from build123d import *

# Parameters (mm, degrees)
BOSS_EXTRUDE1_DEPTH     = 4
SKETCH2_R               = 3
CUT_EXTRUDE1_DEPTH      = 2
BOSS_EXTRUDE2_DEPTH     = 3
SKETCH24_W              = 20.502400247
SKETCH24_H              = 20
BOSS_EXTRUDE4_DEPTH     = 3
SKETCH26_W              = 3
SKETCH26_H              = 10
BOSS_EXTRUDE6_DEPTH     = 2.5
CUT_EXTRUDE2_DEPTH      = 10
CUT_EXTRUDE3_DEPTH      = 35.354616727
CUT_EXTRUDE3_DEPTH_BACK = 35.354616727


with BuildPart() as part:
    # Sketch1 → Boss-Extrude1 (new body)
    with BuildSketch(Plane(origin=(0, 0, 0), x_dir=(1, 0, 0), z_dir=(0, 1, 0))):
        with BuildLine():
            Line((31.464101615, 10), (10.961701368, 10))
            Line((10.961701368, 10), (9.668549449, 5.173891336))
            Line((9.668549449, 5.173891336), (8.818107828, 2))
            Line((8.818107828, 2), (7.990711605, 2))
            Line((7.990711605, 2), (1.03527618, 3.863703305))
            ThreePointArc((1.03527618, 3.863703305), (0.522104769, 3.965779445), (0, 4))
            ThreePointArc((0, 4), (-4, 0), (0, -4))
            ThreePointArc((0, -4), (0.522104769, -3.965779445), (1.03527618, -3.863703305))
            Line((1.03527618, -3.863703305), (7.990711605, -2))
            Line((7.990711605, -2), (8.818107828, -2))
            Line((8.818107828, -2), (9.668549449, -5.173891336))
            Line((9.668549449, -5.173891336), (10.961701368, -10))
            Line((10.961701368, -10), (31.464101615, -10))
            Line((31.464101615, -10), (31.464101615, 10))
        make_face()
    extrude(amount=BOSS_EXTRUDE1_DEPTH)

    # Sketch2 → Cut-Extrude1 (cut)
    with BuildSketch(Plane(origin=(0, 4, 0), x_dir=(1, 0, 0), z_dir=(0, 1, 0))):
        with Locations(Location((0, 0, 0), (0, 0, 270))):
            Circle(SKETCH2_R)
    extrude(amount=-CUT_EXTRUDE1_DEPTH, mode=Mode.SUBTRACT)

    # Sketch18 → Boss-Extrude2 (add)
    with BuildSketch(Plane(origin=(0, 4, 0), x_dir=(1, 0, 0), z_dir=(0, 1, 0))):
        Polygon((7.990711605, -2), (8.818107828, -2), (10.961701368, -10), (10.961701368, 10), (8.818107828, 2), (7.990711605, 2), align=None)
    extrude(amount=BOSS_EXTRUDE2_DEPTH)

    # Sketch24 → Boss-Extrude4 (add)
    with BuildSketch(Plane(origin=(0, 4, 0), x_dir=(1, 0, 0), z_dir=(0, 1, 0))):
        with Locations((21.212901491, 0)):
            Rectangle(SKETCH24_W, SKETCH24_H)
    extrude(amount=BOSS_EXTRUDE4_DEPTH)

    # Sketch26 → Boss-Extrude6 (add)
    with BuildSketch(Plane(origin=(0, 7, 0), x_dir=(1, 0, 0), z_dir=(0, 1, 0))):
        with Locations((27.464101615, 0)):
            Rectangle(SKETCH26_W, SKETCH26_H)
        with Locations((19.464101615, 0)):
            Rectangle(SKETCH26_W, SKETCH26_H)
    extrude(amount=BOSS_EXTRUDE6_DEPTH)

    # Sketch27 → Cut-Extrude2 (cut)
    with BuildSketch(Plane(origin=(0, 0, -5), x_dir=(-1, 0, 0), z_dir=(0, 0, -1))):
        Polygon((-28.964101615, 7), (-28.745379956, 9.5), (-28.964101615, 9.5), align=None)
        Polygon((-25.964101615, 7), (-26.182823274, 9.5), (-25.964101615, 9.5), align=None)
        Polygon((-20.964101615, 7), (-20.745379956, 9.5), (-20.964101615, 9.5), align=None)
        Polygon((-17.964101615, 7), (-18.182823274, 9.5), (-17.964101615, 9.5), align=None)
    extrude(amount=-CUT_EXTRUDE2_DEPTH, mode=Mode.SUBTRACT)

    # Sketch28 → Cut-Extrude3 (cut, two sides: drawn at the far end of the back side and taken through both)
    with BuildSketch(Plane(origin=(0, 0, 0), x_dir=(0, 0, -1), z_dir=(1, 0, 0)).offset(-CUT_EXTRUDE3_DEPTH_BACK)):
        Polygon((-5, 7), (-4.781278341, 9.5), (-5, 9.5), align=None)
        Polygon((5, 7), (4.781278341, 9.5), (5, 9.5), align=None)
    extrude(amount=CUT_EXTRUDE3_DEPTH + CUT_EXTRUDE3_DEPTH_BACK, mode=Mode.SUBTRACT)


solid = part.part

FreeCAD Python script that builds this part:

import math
import FreeCAD as App
import Part
import Sketcher
Q = App.Units.Quantity

doc = App.newDocument("Part")
params = doc.addObject("Spreadsheet::Sheet", "Params")
for row, (alias, value) in enumerate([
    ("sketch1_radius", "4 mm"),
    ("sketch1_height", "20 mm"),
    ("pad1_length", "4 mm"),
    ("sketch2_diameter", "6 mm"),
    ("pocket1_length", "2 mm"),
    ("sketch3_height", "20 mm"),
    ("sketch3_height2", "4 mm"),
    ("pad2_length", "3 mm"),
    ("sketch4_height", "20 mm"),
    ("pad3_length", "3 mm"),
    ("sketch5_width", "3 mm"),
    ("sketch5_height", "10 mm"),
    ("pad4_length", "2.5 mm"),
    ("sketch6_height", "2.5 mm"),
    ("pocket2_length", "10 mm"),
    ("sketch7_width", "2.5 mm"),
], start=1):
    params.set(f"A{row}", alias)
    params.set(f"B{row}", "=" + value)
    params.setAlias(f"B{row}", alias)

body = doc.addObject("PartDesign::Body", "Body")

sketch1 = body.newObject("Sketcher::SketchObject", "Sketch")
sketch1.AttachmentSupport = (doc.getObject("XZ_Plane"), [""])
sketch1.MapMode = "FlatFace"
sketch1.addGeometry([
    Part.LineSegment(App.Vector(31.5, -10, 0), App.Vector(11, -10, 0)),
    Part.LineSegment(App.Vector(11, -10, 0), App.Vector(9.7, -5.2, 0)),
    Part.LineSegment(App.Vector(9.7, -5.2, 0), App.Vector(8.8, -2, 0)),
    Part.LineSegment(App.Vector(8.8, -2, 0), App.Vector(8, -2, 0)),
    Part.LineSegment(App.Vector(8, -2, 0), App.Vector(1, -3.9, 0)),
    Part.ArcOfCircle(Part.Circle(App.Vector(0, 0, 0), App.Vector(0, 0, 1), 4), math.radians(-90), math.radians(-75)),
    Part.ArcOfCircle(Part.Circle(App.Vector(0, 0, 0), App.Vector(0, 0, 1), 4), math.radians(90), math.radians(270)),
    Part.ArcOfCircle(Part.Circle(App.Vector(0, 0, 0), App.Vector(0, 0, 1), 4), math.radians(75), math.radians(90)),
    Part.LineSegment(App.Vector(1, 3.9, 0), App.Vector(8, 2, 0)),
    Part.LineSegment(App.Vector(8, 2, 0), App.Vector(8.8, 2, 0)),
    Part.LineSegment(App.Vector(8.8, 2, 0), App.Vector(9.7, 5.2, 0)),
    Part.LineSegment(App.Vector(9.7, 5.2, 0), App.Vector(11, 10, 0)),
    Part.LineSegment(App.Vector(11, 10, 0), App.Vector(31.5, 10, 0)),
    Part.LineSegment(App.Vector(31.5, 10, 0), App.Vector(31.5, -10, 0)),
], False)
sketch1.addConstraint([
    Sketcher.Constraint("Coincident", 0, 2, 1, 1),
    Sketcher.Constraint("Coincident", 1, 2, 2, 1),
    Sketcher.Constraint("Coincident", 2, 2, 3, 1),
    Sketcher.Constraint("Coincident", 3, 2, 4, 1),
    Sketcher.Constraint("Tangent", 4, 2, 5, 2),
    Sketcher.Constraint("Tangent", 5, 1, 6, 2),
    Sketcher.Constraint("Tangent", 6, 1, 7, 2),
    Sketcher.Constraint("Tangent", 7, 1, 8, 1),
    Sketcher.Constraint("Coincident", 8, 2, 9, 1),
    Sketcher.Constraint("Coincident", 9, 2, 10, 1),
    Sketcher.Constraint("Coincident", 10, 2, 11, 1),
    Sketcher.Constraint("Coincident", 11, 2, 12, 1),
    Sketcher.Constraint("Coincident", 12, 2, 13, 1),
    Sketcher.Constraint("Coincident", 13, 2, 0, 1),
    Sketcher.Constraint("Horizontal", 0),
    Sketcher.Constraint("Horizontal", 3),
    Sketcher.Constraint("Horizontal", 9),
    Sketcher.Constraint("Horizontal", 12),
    Sketcher.Constraint("Vertical", 13),
    Sketcher.Constraint("Coincident", 5, 3, -1, 1),
    Sketcher.Constraint("Equal", 5, 6),
    Sketcher.Constraint("Equal", 6, 7),
    Sketcher.Constraint("Symmetric", 3, 2, 8, 2, -1),
    Sketcher.Constraint("Symmetric", 1, 2, 10, 2, -1),
    Sketcher.Constraint("Symmetric", 0, 2, 11, 2, -1),
    Sketcher.Constraint("PointOnObject", 5, 1, -2),
    Sketcher.Constraint("PointOnObject", 6, 1, -2),
    Sketcher.Constraint("Parallel", 1, 2),
    Sketcher.Constraint("Perpendicular", 2, 4),
    Sketcher.Constraint("Perpendicular", 8, 10),
    Sketcher.Constraint("Radius", 5, 4.0),
    Sketcher.Constraint("DistanceY", 13, 2, 13, 1, 20.0),
    Sketcher.Constraint("Angle", 1, Q("105 deg")),
    Sketcher.Constraint("DistanceY", 2, 2, -1, 1, 2.0),
    Sketcher.Constraint("DistanceX", 0, 2, 0, 1, 20.5024),
    Sketcher.Constraint("DistanceX", -1, 1, 0, 2, 10.961701),
    Sketcher.Constraint("DistanceX", -1, 1, 1, 2, 9.668549),
])
sketch1.setExpression("Constraints[30]", "Params.sketch1_radius")
sketch1.setExpression("Constraints[31]", "Params.sketch1_height")
pad1 = body.newObject("PartDesign::Pad", "Pad")
pad1.Profile = sketch1
pad1.setExpression("Length", "Params.pad1_length")
pad1.Reversed = True

sketch2 = body.newObject("Sketcher::SketchObject", "Sketch001")
sketch2.AttachmentSupport = (doc.getObject("XZ_Plane"), [""])
sketch2.MapMode = "FlatFace"
sketch2.AttachmentOffset = App.Placement(App.Vector(0, 0, -4), App.Rotation())
sketch2.addGeometry(Part.Circle(App.Vector(0, 0, 0), App.Vector(0, 0, 1), 3), False)
sketch2.addConstraint([
    Sketcher.Constraint("Coincident", 0, 3, -1, 1),
    Sketcher.Constraint("Diameter", 0, 6.0),
])
sketch2.setExpression("Constraints[1]", "Params.sketch2_diameter")
pocket1 = body.newObject("PartDesign::Pocket", "Pocket")
pocket1.Profile = sketch2
pocket1.setExpression("Length", "Params.pocket1_length")
pocket1.Reversed = True

sketch3 = body.newObject("Sketcher::SketchObject", "Sketch002")
sketch3.AttachmentSupport = (doc.getObject("XZ_Plane"), [""])
sketch3.MapMode = "FlatFace"
sketch3.AttachmentOffset = App.Placement(App.Vector(0, 0, -4), App.Rotation())
sketch3.addGeometry([
    Part.LineSegment(App.Vector(8, 2, 0), App.Vector(8.8, 2, 0)),
    Part.LineSegment(App.Vector(8.8, 2, 0), App.Vector(11, 10, 0)),
    Part.LineSegment(App.Vector(11, 10, 0), App.Vector(11, -10, 0)),
    Part.LineSegment(App.Vector(11, -10, 0), App.Vector(8.8, -2, 0)),
    Part.LineSegment(App.Vector(8.8, -2, 0), App.Vector(8, -2, 0)),
    Part.LineSegment(App.Vector(8, -2, 0), App.Vector(8, 2, 0)),
], False)
sketch3.addConstraint([
    Sketcher.Constraint("Coincident", 0, 2, 1, 1),
    Sketcher.Constraint("Coincident", 1, 2, 2, 1),
    Sketcher.Constraint("Coincident", 2, 2, 3, 1),
    Sketcher.Constraint("Coincident", 3, 2, 4, 1),
    Sketcher.Constraint("Coincident", 4, 2, 5, 1),
    Sketcher.Constraint("Coincident", 5, 2, 0, 1),
    Sketcher.Constraint("Horizontal", 0),
    Sketcher.Constraint("Vertical", 2),
    Sketcher.Constraint("Horizontal", 4),
    Sketcher.Constraint("Vertical", 5),
    Sketcher.Constraint("Symmetric", 0, 2, 3, 2, -1),
    Sketcher.Constraint("Equal", 1, 3),
    Sketcher.Constraint("DistanceY", 2, 2, 2, 1, 20.0),
    Sketcher.Constraint("DistanceY", 5, 1, 5, 2, 4.0),
    Sketcher.Constraint("Angle", 1, Q("75 deg")),
    Sketcher.Constraint("DistanceX", -1, 1, 1, 2, 10.961701),
    Sketcher.Constraint("DistanceX", 0, 1, 0, 2, 0.827396),
])
sketch3.setExpression("Constraints[12]", "Params.sketch3_height")
sketch3.setExpression("Constraints[13]", "Params.sketch3_height2")
pad2 = body.newObject("PartDesign::Pad", "Pad001")
pad2.Profile = sketch3
pad2.setExpression("Length", "Params.pad2_length")
pad2.Reversed = True

sketch4 = body.newObject("Sketcher::SketchObject", "Sketch003")
sketch4.AttachmentSupport = (doc.getObject("XZ_Plane"), [""])
sketch4.MapMode = "FlatFace"
sketch4.AttachmentOffset = App.Placement(App.Vector(0, 0, -4), App.Rotation())
sketch4.addGeometry([
    Part.LineSegment(App.Vector(11, -10, 0), App.Vector(11, 10, 0)),
    Part.LineSegment(App.Vector(11, 10, 0), App.Vector(31, 10, 0)),
    Part.LineSegment(App.Vector(31, 10, 0), App.Vector(31, -10, 0)),
    Part.LineSegment(App.Vector(31, -10, 0), App.Vector(11, -10, 0)),
], False)
sketch4.addConstraint([
    Sketcher.Constraint("Coincident", 0, 2, 1, 1),
    Sketcher.Constraint("Coincident", 1, 2, 2, 1),
    Sketcher.Constraint("Coincident", 2, 2, 3, 1),
    Sketcher.Constraint("Coincident", 3, 2, 0, 1),
    Sketcher.Constraint("Vertical", 0),
    Sketcher.Constraint("Horizontal", 1),
    Sketcher.Constraint("Vertical", 2),
    Sketcher.Constraint("Horizontal", 3),
    Sketcher.Constraint("DistanceY", 0, 1, 0, 2, 20.0),
    Sketcher.Constraint("DistanceY", -1, 1, 0, 2, 10.0),
    Sketcher.Constraint("DistanceX", 1, 1, 1, 2, 20.5024),
    Sketcher.Constraint("DistanceX", -1, 1, 0, 2, 10.961701),
])
sketch4.setExpression("Constraints[8]", "Params.sketch4_height")
pad3 = body.newObject("PartDesign::Pad", "Pad002")
pad3.Profile = sketch4
pad3.setExpression("Length", "Params.pad3_length")
pad3.Reversed = True

sketch5 = body.newObject("Sketcher::SketchObject", "Sketch004")
sketch5.AttachmentSupport = (doc.getObject("XZ_Plane"), [""])
sketch5.MapMode = "FlatFace"
sketch5.AttachmentOffset = App.Placement(App.Vector(0, 0, -7), App.Rotation())
sketch5.addGeometry([
    Part.LineSegment(App.Vector(26, -5, 0), App.Vector(26, 5, 0)),
    Part.LineSegment(App.Vector(26, 5, 0), App.Vector(29, 5, 0)),
    Part.LineSegment(App.Vector(29, 5, 0), App.Vector(29, -5, 0)),
    Part.LineSegment(App.Vector(29, -5, 0), App.Vector(26, -5, 0)),
    Part.LineSegment(App.Vector(18, -5, 0), App.Vector(18, 5, 0)),
    Part.LineSegment(App.Vector(18, 5, 0), App.Vector(21, 5, 0)),
    Part.LineSegment(App.Vector(21, 5, 0), App.Vector(21, -5, 0)),
    Part.LineSegment(App.Vector(21, -5, 0), App.Vector(18, -5, 0)),
], False)
sketch5.addConstraint([
    Sketcher.Constraint("Coincident", 0, 2, 1, 1),
    Sketcher.Constraint("Coincident", 1, 2, 2, 1),
    Sketcher.Constraint("Coincident", 2, 2, 3, 1),
    Sketcher.Constraint("Coincident", 3, 2, 0, 1),
    Sketcher.Constraint("Coincident", 4, 2, 5, 1),
    Sketcher.Constraint("Coincident", 5, 2, 6, 1),
    Sketcher.Constraint("Coincident", 6, 2, 7, 1),
    Sketcher.Constraint("Coincident", 7, 2, 4, 1),
    Sketcher.Constraint("Vertical", 0),
    Sketcher.Constraint("Horizontal", 1),
    Sketcher.Constraint("Vertical", 2),
    Sketcher.Constraint("Horizontal", 3),
    Sketcher.Constraint("Vertical", 4),
    Sketcher.Constraint("Horizontal", 5),
    Sketcher.Constraint("Vertical", 6),
    Sketcher.Constraint("Horizontal", 7),
    Sketcher.Constraint("Horizontal", 1, 2, 4, 2),
    Sketcher.Constraint("Horizontal", 3, 2, 6, 2),
    Sketcher.Constraint("Equal", 3, 5),
    Sketcher.Constraint("DistanceX", 1, 1, 1, 2, 3.0),
    Sketcher.Constraint("DistanceY", 0, 1, 0, 2, 10.0),
    Sketcher.Constraint("DistanceY", -1, 1, 0, 2, 5.0),
    Sketcher.Constraint("DistanceX", 4, 2, 0, 2, 8.0),
    Sketcher.Constraint("DistanceX", -1, 1, 0, 2, 25.964102),
])
sketch5.setExpression("Constraints[19]", "Params.sketch5_width")
sketch5.setExpression("Constraints[20]", "Params.sketch5_height")
pad4 = body.newObject("PartDesign::Pad", "Pad003")
pad4.Profile = sketch5
pad4.setExpression("Length", "Params.pad4_length")
pad4.Reversed = True

sketch6 = body.newObject("Sketcher::SketchObject", "Sketch005")
sketch6.AttachmentSupport = (doc.getObject("XY_Plane"), [""])
sketch6.MapMode = "FlatFace"
sketch6.AttachmentOffset = App.Placement(App.Vector(0, 0, -5), App.Rotation())
sketch6.addGeometry([
    Part.LineSegment(App.Vector(28.96, 7, 0), App.Vector(28.75, 9.5, 0)),
    Part.LineSegment(App.Vector(28.75, 9.5, 0), App.Vector(28.96, 9.5, 0)),
    Part.LineSegment(App.Vector(28.96, 9.5, 0), App.Vector(28.96, 7, 0)),
    Part.LineSegment(App.Vector(26.18, 9.5, 0), App.Vector(25.96, 7, 0)),
    Part.LineSegment(App.Vector(25.96, 7, 0), App.Vector(25.96, 9.5, 0)),
    Part.LineSegment(App.Vector(25.96, 9.5, 0), App.Vector(26.18, 9.5, 0)),
    Part.LineSegment(App.Vector(20.96, 7, 0), App.Vector(20.75, 9.5, 0)),
    Part.LineSegment(App.Vector(20.75, 9.5, 0), App.Vector(20.96, 9.5, 0)),
    Part.LineSegment(App.Vector(20.96, 9.5, 0), App.Vector(20.96, 7, 0)),
    Part.LineSegment(App.Vector(18.18, 9.5, 0), App.Vector(17.96, 7, 0)),
    Part.LineSegment(App.Vector(17.96, 7, 0), App.Vector(17.96, 9.5, 0)),
    Part.LineSegment(App.Vector(17.96, 9.5, 0), App.Vector(18.18, 9.5, 0)),
], False)
sketch6.addConstraint([
    Sketcher.Constraint("Coincident", 0, 2, 1, 1),
    Sketcher.Constraint("Coincident", 1, 2, 2, 1),
    Sketcher.Constraint("Coincident", 2, 2, 0, 1),
    Sketcher.Constraint("Coincident", 3, 2, 4, 1),
    Sketcher.Constraint("Coincident", 4, 2, 5, 1),
    Sketcher.Constraint("Coincident", 5, 2, 3, 1),
    Sketcher.Constraint("Coincident", 6, 2, 7, 1),
    Sketcher.Constraint("Coincident", 7, 2, 8, 1),
    Sketcher.Constraint("Coincident", 8, 2, 6, 1),
    Sketcher.Constraint("Coincident", 9, 2, 10, 1),
    Sketcher.Constraint("Coincident", 10, 2, 11, 1),
    Sketcher.Constraint("Coincident", 11, 2, 9, 1),
    Sketcher.Constraint("Horizontal", 1),
    Sketcher.Constraint("Vertical", 2),
    Sketcher.Constraint("Vertical", 4),
    Sketcher.Constraint("Horizontal", 5),
    Sketcher.Constraint("Horizontal", 7),
    Sketcher.Constraint("Vertical", 8),
    Sketcher.Constraint("Vertical", 10),
    Sketcher.Constraint("Horizontal", 11),
    Sketcher.Constraint("Parallel", 0, 6),
    Sketcher.Constraint("Parallel", 3, 9),
    Sketcher.Constraint("Horizontal", 2, 2, 3, 2),
    Sketcher.Constraint("Horizontal", 1, 2, 4, 2),
    Sketcher.Constraint("Horizontal", 5, 2, 6, 2),
    Sketcher.Constraint("Horizontal", 3, 2, 8, 2),
    Sketcher.Constraint("Horizontal", 8, 2, 9, 2),
    Sketcher.Constraint("Horizontal", 7, 2, 10, 2),
    Sketcher.Constraint("Equal", 1, 5),
    Sketcher.Constraint("Angle", 0, Q("95 deg")),
    Sketcher.Constraint("DistanceY", 2, 2, 2, 1, 2.5),
    Sketcher.Constraint("DistanceY", -1, 1, 2, 2, 7.0),
    Sketcher.Constraint("DistanceX", 3, 2, 2, 2, 3.0),
    Sketcher.Constraint("DistanceX", 6, 2, 0, 2, 8.0),
    Sketcher.Constraint("DistanceX", 9, 2, 8, 2, 3.0),
    Sketcher.Constraint("DistanceX", -1, 1, 1, 2, 28.964102),
])
sketch6.setExpression("Constraints[30]", "Params.sketch6_height")
pocket2 = body.newObject("PartDesign::Pocket", "Pocket001")
pocket2.Profile = sketch6
pocket2.setExpression("Length", "Params.pocket2_length")
pocket2.Reversed = True

sketch7 = body.newObject("Sketcher::SketchObject", "Sketch006")
sketch7.AttachmentSupport = (doc.getObject("YZ_Plane"), [""])
sketch7.MapMode = "FlatFace"
sketch7.addGeometry([
    Part.LineSegment(App.Vector(7, 5, 0), App.Vector(9.5, 4.78, 0)),
    Part.LineSegment(App.Vector(9.5, 4.78, 0), App.Vector(9.5, 5, 0)),
    Part.LineSegment(App.Vector(9.5, 5, 0), App.Vector(7, 5, 0)),
    Part.LineSegment(App.Vector(9.5, -4.78, 0), App.Vector(7, -5, 0)),
    Part.LineSegment(App.Vector(7, -5, 0), App.Vector(9.5, -5, 0)),
    Part.LineSegment(App.Vector(9.5, -5, 0), App.Vector(9.5, -4.78, 0)),
], False)
sketch7.addConstraint([
    Sketcher.Constraint("Coincident", 0, 2, 1, 1),
    Sketcher.Constraint("Coincident", 1, 2, 2, 1),
    Sketcher.Constraint("Coincident", 2, 2, 0, 1),
    Sketcher.Constraint("Coincident", 3, 2, 4, 1),
    Sketcher.Constraint("Coincident", 4, 2, 5, 1),
    Sketcher.Constraint("Coincident", 5, 2, 3, 1),
    Sketcher.Constraint("Vertical", 1),
    Sketcher.Constraint("Horizontal", 2),
    Sketcher.Constraint("Horizontal", 4),
    Sketcher.Constraint("Vertical", 5),
    Sketcher.Constraint("Symmetric", 2, 2, 3, 2, -1),
    Sketcher.Constraint("Symmetric", 0, 2, 5, 2, -1),
    Sketcher.Constraint("Angle", 0, Q("-5 deg")),
    Sketcher.Constraint("DistanceX", 2, 2, 2, 1, 2.5),
    Sketcher.Constraint("DistanceY", -1, 1, 1, 2, 5.0),
    Sketcher.Constraint("DistanceX", -1, 1, 2, 2, 7.0),
])
sketch7.setExpression("Constraints[13]", "Params.sketch7_width")
pocket3 = body.newObject("PartDesign::Pocket", "Pocket002")
pocket3.Profile = sketch7
pocket3.Type = "ThroughAll"
pocket3.Midplane = True

doc.recompute()
